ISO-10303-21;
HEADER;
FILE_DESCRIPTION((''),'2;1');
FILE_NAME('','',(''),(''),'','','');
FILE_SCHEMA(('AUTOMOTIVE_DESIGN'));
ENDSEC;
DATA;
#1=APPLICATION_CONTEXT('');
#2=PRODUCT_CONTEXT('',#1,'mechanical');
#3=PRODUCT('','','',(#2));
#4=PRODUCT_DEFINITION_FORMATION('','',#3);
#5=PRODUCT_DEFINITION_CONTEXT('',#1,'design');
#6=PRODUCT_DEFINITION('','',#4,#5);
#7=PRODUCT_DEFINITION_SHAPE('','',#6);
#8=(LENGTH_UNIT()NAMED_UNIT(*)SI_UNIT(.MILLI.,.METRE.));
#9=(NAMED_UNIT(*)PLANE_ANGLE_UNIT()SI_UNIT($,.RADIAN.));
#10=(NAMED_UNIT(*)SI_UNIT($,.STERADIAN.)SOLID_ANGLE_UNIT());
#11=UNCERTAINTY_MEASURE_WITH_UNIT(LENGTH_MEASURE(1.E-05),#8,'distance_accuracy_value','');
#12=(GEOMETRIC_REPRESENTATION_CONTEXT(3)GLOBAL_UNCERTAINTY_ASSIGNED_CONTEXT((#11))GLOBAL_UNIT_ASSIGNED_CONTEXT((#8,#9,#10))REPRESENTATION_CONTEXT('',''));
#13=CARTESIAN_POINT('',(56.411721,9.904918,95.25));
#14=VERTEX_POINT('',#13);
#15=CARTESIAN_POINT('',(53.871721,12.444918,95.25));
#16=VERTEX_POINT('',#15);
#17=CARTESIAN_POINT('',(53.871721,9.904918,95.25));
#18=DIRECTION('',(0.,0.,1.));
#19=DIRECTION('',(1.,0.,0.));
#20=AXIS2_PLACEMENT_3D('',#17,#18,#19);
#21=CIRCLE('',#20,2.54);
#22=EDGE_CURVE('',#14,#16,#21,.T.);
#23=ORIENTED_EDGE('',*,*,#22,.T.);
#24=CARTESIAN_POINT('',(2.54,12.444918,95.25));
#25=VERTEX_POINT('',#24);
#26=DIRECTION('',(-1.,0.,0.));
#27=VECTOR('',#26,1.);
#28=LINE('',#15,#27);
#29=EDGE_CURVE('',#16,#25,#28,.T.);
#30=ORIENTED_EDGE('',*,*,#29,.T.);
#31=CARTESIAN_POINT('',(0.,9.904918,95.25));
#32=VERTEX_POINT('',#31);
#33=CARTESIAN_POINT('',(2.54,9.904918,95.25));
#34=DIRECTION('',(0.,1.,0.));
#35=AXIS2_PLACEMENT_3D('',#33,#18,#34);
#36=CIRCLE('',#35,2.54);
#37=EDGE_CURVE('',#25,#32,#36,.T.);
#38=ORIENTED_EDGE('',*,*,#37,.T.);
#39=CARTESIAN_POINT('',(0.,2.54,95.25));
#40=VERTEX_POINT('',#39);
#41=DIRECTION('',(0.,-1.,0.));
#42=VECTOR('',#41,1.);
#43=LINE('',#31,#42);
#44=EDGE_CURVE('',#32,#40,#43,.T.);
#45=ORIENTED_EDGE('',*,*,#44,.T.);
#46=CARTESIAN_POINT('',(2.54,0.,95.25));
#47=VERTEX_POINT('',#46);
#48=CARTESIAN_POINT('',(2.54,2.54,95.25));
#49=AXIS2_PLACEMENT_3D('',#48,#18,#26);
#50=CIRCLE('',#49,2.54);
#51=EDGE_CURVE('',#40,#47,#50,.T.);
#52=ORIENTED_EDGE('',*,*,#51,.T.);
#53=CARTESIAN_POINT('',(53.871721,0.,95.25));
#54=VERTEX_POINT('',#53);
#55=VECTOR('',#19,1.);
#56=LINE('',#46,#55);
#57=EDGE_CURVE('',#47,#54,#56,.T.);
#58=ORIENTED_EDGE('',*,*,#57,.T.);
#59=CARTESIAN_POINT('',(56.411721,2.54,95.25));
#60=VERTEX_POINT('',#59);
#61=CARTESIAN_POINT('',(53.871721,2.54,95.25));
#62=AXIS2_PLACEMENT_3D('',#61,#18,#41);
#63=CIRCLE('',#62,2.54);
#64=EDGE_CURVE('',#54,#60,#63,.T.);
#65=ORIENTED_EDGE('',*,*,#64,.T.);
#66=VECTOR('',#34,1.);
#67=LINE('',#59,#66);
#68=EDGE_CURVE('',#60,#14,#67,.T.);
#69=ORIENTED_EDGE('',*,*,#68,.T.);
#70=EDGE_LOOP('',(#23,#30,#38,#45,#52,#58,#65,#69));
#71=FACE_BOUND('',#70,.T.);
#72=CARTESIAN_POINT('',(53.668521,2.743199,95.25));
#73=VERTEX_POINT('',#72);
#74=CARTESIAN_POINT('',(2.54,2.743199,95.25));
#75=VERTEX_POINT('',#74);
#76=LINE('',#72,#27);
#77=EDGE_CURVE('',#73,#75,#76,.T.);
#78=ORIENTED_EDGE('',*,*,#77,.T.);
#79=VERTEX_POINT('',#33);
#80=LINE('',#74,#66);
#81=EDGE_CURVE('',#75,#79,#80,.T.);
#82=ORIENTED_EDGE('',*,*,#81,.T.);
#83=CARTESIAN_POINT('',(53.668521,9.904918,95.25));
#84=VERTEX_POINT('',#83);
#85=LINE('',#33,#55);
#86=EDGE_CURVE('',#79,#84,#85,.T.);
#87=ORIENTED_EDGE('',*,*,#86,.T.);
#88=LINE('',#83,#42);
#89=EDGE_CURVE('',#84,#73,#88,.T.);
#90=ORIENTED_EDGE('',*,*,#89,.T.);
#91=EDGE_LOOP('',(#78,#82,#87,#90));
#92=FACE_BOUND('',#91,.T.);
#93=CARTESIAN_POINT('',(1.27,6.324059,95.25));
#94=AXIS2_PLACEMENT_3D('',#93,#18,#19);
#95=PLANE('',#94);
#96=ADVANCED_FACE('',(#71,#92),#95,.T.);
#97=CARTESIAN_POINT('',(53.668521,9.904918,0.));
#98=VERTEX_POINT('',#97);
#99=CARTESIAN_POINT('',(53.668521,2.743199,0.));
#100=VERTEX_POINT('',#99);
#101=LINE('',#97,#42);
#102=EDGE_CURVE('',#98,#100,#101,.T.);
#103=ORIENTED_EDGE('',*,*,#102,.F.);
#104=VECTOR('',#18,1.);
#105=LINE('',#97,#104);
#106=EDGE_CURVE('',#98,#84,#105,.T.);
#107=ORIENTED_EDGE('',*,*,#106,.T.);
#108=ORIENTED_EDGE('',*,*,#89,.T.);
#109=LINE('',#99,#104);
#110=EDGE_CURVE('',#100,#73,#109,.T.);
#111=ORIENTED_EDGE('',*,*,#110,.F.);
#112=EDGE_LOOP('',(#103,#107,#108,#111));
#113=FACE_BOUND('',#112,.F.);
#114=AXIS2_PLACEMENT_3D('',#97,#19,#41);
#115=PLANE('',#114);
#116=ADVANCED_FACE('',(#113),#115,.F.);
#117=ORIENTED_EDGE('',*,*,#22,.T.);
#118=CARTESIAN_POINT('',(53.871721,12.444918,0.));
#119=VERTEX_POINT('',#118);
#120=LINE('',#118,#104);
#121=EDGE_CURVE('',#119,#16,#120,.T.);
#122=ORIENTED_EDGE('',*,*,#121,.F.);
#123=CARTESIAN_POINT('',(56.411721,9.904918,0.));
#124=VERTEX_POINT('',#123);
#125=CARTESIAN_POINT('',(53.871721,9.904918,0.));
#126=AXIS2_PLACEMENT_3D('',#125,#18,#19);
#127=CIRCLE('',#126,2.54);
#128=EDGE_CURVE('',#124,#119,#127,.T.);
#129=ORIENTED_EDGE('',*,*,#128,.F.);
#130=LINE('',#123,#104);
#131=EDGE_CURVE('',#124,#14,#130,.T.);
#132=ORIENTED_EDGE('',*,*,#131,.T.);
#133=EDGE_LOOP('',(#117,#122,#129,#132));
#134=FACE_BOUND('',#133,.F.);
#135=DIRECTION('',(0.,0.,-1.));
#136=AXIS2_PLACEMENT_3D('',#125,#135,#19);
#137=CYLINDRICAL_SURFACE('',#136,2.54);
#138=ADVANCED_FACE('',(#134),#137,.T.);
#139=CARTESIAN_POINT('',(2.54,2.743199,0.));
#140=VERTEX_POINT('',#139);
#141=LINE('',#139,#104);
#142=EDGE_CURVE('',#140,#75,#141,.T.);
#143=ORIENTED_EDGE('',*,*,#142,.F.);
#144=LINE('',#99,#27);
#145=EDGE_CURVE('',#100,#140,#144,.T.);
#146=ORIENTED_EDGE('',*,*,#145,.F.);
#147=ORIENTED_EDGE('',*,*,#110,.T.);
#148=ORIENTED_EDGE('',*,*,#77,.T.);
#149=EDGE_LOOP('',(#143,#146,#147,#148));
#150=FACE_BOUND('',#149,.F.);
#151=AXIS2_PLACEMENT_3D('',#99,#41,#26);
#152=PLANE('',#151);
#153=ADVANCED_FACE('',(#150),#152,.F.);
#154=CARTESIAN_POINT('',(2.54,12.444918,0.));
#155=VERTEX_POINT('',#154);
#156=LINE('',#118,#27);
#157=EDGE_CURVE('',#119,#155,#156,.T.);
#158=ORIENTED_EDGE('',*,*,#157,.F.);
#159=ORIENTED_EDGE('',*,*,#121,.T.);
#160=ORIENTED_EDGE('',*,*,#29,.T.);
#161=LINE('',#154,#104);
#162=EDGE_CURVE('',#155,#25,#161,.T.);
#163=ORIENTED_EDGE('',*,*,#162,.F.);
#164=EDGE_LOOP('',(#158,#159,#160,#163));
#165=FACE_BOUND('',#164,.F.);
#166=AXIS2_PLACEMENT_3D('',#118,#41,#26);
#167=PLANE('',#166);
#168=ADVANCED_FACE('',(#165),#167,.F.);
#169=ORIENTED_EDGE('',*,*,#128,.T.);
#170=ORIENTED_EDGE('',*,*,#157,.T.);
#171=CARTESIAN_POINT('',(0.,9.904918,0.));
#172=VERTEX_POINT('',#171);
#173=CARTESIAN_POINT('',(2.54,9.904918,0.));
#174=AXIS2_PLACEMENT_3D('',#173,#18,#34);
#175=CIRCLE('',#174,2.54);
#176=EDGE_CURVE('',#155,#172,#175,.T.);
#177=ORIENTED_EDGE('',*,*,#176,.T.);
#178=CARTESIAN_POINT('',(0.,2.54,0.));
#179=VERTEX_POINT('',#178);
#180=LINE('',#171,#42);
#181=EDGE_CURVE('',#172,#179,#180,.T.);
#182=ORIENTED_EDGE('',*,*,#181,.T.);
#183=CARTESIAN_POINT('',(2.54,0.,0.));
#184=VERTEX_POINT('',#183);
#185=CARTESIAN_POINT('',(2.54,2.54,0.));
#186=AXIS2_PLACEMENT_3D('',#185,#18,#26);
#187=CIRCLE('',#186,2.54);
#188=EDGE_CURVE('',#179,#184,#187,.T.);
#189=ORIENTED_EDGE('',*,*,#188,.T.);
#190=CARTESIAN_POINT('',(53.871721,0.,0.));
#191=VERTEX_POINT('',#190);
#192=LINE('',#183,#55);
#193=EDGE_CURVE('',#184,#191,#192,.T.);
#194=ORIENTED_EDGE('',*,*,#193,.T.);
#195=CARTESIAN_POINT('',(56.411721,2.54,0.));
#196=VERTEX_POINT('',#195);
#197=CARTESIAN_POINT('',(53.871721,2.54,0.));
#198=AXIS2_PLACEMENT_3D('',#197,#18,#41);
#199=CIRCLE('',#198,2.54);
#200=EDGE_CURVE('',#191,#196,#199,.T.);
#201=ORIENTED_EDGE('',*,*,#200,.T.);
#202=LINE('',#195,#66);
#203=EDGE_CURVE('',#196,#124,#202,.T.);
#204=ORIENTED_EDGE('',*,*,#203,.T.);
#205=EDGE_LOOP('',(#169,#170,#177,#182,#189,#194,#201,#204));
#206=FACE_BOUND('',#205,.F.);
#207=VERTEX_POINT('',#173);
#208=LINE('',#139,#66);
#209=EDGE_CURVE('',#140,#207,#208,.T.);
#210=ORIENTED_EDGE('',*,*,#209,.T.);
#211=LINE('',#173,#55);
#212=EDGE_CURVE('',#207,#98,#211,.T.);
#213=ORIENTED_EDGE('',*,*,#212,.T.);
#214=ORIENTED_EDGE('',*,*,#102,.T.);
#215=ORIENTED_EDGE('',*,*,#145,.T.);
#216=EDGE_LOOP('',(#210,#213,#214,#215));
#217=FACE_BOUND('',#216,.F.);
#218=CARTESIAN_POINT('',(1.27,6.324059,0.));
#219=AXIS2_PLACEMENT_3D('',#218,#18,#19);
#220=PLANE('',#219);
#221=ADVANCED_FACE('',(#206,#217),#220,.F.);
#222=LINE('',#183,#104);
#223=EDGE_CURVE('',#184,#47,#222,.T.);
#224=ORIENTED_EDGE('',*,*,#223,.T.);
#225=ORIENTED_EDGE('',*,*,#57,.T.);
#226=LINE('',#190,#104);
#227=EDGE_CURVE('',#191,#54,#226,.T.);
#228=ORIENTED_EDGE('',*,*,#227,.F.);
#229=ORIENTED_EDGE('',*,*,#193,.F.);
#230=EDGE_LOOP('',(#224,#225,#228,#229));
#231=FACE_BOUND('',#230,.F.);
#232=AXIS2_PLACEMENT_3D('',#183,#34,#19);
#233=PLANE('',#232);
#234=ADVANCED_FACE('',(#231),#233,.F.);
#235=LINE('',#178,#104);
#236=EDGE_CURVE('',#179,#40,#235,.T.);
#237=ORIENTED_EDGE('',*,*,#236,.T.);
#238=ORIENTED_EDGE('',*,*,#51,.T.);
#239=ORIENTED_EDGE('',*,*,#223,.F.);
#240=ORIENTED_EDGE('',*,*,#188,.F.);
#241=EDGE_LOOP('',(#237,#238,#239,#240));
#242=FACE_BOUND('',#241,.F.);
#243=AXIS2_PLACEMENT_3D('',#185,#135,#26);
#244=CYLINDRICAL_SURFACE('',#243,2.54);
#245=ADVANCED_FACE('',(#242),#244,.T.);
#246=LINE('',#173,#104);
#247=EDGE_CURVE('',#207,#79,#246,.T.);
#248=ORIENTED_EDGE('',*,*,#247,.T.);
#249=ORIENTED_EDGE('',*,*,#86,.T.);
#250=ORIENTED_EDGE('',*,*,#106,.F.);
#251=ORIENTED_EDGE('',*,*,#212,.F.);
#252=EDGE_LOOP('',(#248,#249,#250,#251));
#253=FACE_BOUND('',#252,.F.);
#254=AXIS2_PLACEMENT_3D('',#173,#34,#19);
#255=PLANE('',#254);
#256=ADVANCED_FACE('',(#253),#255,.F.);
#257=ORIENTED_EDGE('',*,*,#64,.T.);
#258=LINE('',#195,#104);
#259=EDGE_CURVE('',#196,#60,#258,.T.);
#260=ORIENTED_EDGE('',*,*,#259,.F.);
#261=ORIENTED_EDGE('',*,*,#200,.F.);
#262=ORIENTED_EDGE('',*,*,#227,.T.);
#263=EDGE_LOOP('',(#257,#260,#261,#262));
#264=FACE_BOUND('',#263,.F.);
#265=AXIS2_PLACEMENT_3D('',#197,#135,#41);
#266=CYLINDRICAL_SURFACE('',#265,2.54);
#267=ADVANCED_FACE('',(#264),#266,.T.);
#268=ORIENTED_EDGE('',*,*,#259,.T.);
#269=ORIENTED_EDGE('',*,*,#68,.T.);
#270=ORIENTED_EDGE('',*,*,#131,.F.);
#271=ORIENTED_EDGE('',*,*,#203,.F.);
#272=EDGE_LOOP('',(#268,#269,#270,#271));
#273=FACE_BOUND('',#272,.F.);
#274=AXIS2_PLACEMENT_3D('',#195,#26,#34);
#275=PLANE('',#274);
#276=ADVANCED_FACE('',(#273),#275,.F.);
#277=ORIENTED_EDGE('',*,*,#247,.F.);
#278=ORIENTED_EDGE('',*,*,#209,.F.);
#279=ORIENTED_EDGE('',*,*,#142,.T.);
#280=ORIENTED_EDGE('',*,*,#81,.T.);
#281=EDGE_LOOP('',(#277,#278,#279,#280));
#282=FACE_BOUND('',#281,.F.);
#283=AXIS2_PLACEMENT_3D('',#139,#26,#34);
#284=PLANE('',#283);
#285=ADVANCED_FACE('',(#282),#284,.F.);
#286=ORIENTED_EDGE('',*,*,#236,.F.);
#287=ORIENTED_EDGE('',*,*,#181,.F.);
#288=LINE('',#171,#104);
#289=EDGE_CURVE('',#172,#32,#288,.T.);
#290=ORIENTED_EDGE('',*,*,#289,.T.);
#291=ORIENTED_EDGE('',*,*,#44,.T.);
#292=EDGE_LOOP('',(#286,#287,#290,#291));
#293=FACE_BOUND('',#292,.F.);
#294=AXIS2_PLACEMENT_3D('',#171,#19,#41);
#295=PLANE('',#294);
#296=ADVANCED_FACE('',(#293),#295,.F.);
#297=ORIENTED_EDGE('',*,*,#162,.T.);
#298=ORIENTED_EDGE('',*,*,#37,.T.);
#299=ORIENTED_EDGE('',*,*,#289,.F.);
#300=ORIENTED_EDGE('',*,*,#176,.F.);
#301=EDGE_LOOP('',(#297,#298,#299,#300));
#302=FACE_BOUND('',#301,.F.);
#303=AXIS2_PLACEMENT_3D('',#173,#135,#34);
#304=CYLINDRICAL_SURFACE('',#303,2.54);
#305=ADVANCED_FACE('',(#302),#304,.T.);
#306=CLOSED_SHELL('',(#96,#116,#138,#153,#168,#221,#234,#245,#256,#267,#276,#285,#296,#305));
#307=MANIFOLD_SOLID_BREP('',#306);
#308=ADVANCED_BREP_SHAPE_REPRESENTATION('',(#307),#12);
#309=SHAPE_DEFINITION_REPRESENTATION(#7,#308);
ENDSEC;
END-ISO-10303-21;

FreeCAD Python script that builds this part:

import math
import FreeCAD as App
import Part
import Sketcher

V = App.Vector
Q = App.Units.Quantity

doc = App.newDocument("Part")
body = doc.addObject("PartDesign::Body", "Body")

sketch1 = body.newObject("Sketcher::SketchObject", "Sketch")
sketch1.AttachmentSupport = (doc.getObject("XY_Plane"), [""])
sketch1.MapMode = "FlatFace"
sketch1.addGeometry([
    Part.LineSegment(V(0, 9.904918, 0), V(0, 2.54, 0)),
    Part.ArcOfCircle(Part.Circle(V(2.54, 2.54, 0), V(0, 0, 1), 2.54), math.radians(180), math.radians(270)),
    Part.LineSegment(V(2.54, 0, 0), V(53.871721, 0, 0)),
    Part.ArcOfCircle(Part.Circle(V(53.871721, 2.54, 0), V(0, 0, 1), 2.54), math.radians(-90), math.radians(0)),
    Part.LineSegment(V(56.411721, 2.54, 0), V(56.411721, 9.904918, 0)),
    Part.ArcOfCircle(Part.Circle(V(53.871721, 9.904918, 0), V(0, 0, 1), 2.54), math.radians(0), math.radians(90)),
    Part.LineSegment(V(53.871721, 12.444918, 0), V(2.54, 12.444918, 0)),
    Part.ArcOfCircle(Part.Circle(V(2.54, 9.904918, 0), V(0, 0, 1), 2.54), math.radians(90), math.radians(180)),
    Part.LineSegment(V(53.668521, 2.743199, 0), V(2.54, 2.743199, 0)),
    Part.LineSegment(V(2.54, 2.743199, 0), V(2.54, 9.904918, 0)),
    Part.LineSegment(V(2.54, 9.904918, 0), V(53.668521, 9.904918, 0)),
    Part.LineSegment(V(53.668521, 9.904918, 0), V(53.668521, 2.743199, 0)),
], False)
sketch1.addConstraint([
    Sketcher.Constraint("Tangent", 0, 2, 1, 1),
    Sketcher.Constraint("Tangent", 1, 2, 2, 1),
    Sketcher.Constraint("Tangent", 2, 2, 3, 1),
    Sketcher.Constraint("Tangent", 3, 2, 4, 1),
    Sketcher.Constraint("Tangent", 4, 2, 5, 1),
    Sketcher.Constraint("Tangent", 5, 2, 6, 1),
    Sketcher.Constraint("Tangent", 6, 2, 7, 1),
    Sketcher.Constraint("Tangent", 7, 2, 0, 1),
    Sketcher.Constraint("Coincident", 8, 2, 9, 1),
    Sketcher.Constraint("Coincident", 9, 2, 10, 1),
    Sketcher.Constraint("Coincident", 10, 2, 11, 1),
    Sketcher.Constraint("Coincident", 11, 2, 8, 1),
    Sketcher.Constraint("Vertical", 0),
    Sketcher.Constraint("Horizontal", 2),
    Sketcher.Constraint("Vertical", 4),
    Sketcher.Constraint("Horizontal", 6),
    Sketcher.Constraint("Horizontal", 8),
    Sketcher.Constraint("Vertical", 9),
    Sketcher.Constraint("Horizontal", 10),
    Sketcher.Constraint("Vertical", 11),
    Sketcher.Constraint("Coincident", 9, 2, 7, 3),
    Sketcher.Constraint("Equal", 1, 3),
    Sketcher.Constraint("Equal", 3, 5),
    Sketcher.Constraint("Equal", 5, 7),
    Sketcher.Constraint("PointOnObject", 0, 2, -2),
    Sketcher.Constraint("PointOnObject", 1, 2, -1),
    Sketcher.Constraint("Radius", 1, Q("0.1 in")),
    Sketcher.Constraint("DistanceY", -1, 1, 8, 2, Q("0.108 in")),
    Sketcher.Constraint("DistanceX", 10, 2, 5, 3, Q("0.008 in")),
    Sketcher.Constraint("DistanceX", 2, 1, 2, 2, Q("51.331721 mm")),
    Sketcher.Constraint("DistanceY", 0, 2, 0, 1, Q("7.364918 mm")),
])
pad1 = body.newObject("PartDesign::Pad", "Pad")
pad1.Profile = sketch1
pad1.Length = Q("3.75 in")

doc.recompute()
